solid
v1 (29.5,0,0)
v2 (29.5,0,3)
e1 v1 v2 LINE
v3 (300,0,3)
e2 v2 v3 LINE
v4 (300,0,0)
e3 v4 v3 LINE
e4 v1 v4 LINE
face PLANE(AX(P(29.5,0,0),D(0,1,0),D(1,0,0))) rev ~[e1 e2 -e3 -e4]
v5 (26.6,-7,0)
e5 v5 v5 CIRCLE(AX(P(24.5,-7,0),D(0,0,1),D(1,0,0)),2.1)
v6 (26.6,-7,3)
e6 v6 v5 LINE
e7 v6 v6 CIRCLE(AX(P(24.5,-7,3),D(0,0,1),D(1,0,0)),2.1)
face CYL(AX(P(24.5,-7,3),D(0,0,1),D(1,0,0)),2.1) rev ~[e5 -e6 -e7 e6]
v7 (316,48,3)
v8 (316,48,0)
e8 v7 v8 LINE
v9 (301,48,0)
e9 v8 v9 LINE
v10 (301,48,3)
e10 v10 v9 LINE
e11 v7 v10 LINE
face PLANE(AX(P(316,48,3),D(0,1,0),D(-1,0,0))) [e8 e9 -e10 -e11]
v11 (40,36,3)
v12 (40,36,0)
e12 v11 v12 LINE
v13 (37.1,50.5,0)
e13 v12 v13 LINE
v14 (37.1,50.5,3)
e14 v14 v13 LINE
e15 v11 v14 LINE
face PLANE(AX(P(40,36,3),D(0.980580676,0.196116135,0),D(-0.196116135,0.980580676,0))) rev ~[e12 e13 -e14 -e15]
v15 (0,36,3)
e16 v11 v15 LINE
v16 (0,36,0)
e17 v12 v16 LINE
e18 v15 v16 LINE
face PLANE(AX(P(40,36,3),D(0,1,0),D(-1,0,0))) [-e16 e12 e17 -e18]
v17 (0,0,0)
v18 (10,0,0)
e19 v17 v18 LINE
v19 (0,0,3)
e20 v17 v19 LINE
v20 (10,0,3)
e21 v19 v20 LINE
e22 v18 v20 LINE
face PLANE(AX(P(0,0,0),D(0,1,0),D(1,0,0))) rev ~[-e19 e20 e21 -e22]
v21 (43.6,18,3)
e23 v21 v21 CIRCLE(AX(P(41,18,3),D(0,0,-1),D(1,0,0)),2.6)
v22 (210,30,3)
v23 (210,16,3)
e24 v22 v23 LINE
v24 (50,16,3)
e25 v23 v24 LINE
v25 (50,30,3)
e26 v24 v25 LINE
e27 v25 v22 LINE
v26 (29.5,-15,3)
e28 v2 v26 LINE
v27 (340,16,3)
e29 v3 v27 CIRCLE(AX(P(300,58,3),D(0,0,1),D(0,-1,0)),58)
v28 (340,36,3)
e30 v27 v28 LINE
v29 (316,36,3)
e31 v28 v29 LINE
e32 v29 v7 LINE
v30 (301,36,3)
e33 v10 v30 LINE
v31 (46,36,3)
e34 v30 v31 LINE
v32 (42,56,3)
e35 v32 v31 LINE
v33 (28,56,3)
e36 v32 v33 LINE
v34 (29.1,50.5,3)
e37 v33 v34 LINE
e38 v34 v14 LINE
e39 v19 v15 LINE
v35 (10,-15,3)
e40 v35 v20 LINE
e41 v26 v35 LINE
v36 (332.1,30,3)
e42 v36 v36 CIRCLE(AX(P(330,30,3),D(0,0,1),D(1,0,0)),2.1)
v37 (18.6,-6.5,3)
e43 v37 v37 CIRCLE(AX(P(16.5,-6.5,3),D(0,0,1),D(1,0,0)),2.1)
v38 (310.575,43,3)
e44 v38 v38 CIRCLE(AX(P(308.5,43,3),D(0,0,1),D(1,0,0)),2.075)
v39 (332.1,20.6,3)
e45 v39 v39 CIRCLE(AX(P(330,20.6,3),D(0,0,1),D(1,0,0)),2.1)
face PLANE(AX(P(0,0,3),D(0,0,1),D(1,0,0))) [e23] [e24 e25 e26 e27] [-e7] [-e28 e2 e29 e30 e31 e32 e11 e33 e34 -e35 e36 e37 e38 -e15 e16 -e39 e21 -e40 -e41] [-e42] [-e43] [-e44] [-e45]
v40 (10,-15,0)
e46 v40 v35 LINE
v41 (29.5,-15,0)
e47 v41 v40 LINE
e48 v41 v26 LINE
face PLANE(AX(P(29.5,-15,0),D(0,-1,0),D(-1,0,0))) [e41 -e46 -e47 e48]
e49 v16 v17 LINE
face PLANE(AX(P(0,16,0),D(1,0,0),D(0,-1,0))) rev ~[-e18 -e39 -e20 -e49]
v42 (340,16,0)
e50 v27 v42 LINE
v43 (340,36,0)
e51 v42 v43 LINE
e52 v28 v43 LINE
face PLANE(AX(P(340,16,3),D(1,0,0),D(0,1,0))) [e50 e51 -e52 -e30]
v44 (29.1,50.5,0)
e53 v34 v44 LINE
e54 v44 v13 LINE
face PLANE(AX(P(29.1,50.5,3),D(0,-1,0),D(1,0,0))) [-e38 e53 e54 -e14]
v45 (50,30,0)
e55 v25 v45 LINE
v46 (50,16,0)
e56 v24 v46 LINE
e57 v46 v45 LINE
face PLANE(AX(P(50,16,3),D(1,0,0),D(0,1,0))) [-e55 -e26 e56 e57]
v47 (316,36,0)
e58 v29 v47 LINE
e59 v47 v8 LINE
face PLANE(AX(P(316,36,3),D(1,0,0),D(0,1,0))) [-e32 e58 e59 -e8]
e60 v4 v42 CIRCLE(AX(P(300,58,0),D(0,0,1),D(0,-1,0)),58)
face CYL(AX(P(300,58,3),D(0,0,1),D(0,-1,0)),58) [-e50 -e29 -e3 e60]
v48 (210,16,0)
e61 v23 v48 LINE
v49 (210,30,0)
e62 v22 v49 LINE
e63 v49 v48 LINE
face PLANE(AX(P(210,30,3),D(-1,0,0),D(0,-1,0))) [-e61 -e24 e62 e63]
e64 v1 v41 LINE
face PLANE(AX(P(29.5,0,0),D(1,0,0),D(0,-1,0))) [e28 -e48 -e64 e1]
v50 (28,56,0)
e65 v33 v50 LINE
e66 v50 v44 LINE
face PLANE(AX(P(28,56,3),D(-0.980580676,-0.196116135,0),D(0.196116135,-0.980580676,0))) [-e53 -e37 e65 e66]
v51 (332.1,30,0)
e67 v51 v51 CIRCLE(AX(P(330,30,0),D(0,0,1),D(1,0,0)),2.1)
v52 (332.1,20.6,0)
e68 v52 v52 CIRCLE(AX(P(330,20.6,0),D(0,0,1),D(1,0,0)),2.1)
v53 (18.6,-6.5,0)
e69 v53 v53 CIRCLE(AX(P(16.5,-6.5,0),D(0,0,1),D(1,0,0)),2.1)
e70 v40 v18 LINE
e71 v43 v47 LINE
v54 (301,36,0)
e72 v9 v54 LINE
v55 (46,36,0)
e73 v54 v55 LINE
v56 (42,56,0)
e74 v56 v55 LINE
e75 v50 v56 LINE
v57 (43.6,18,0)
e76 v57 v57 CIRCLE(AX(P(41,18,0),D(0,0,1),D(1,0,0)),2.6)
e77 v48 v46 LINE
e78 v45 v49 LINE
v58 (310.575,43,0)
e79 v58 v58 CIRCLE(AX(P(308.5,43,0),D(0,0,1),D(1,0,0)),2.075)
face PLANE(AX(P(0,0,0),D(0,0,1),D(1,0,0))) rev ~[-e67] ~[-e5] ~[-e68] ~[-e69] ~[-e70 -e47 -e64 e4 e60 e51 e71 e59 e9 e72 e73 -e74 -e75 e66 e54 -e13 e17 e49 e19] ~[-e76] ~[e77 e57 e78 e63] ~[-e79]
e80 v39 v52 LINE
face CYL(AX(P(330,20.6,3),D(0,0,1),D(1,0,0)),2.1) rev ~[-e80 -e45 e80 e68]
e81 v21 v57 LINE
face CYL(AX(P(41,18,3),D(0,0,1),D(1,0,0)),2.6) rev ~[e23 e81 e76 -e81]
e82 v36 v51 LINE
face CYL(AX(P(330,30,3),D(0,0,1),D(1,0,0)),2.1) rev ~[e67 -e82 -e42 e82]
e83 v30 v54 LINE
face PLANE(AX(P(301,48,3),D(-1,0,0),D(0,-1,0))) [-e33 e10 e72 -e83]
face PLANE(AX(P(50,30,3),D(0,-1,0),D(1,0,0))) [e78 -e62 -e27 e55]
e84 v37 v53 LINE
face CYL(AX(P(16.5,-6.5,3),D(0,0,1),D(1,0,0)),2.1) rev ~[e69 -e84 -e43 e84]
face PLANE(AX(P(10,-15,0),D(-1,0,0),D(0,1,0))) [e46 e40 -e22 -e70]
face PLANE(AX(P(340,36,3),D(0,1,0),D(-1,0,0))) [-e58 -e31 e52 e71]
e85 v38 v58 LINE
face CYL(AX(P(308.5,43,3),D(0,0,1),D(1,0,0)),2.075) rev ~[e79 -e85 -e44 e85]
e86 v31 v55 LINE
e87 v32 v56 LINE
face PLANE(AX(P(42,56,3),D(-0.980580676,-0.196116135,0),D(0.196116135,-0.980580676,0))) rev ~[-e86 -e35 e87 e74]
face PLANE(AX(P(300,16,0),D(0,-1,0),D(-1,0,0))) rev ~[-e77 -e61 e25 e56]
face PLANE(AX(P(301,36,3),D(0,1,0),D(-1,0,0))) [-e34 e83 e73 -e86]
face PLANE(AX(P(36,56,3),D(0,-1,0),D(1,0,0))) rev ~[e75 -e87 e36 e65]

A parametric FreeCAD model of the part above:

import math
import FreeCAD as App
import Part
import Sketcher

doc = App.newDocument("Part")
body = doc.addObject("PartDesign::Body", "Body")

# Sketch on XY plane
sketch1 = body.newObject("Sketcher::SketchObject", "Sketch")
sketch1.AttachmentSupport = (doc.getObject("XY_Plane"), [""])
sketch1.MapMode = "FlatFace"
sketch1.addGeometry(Part.LineSegment(App.Vector(0, 16, 0), App.Vector(0, 0, 0)), False)
sketch1.addGeometry(Part.LineSegment(App.Vector(0, 0, 0), App.Vector(10, 0, 0)), False)
sketch1.addGeometry(Part.LineSegment(App.Vector(10, 0, 0), App.Vector(10, -15, 0)), False)
sketch1.addGeometry(Part.LineSegment(App.Vector(10, -15, 0), App.Vector(30, -15, 0)), False)
sketch1.addGeometry(Part.LineSegment(App.Vector(30, -15, 0), App.Vector(30, 0, 0)), False)
sketch1.addGeometry(Part.LineSegment(App.Vector(30, 0, 0), App.Vector(300, 0, 0)), False)
sketch1.addGeometry(Part.LineSegment(App.Vector(300, 0, 0), App.Vector(300, 16, 0)), False)
sketch1.addGeometry(Part.LineSegment(App.Vector(300, 16, 0), App.Vector(0, 16, 0)), False)
sketch1.addConstraint(Sketcher.Constraint("Coincident", 0, 2, 1, 1))
sketch1.addConstraint(Sketcher.Constraint("Coincident", 1, 2, 2, 1))
sketch1.addConstraint(Sketcher.Constraint("Coincident", 2, 2, 3, 1))
sketch1.addConstraint(Sketcher.Constraint("Coincident", 3, 2, 4, 1))
sketch1.addConstraint(Sketcher.Constraint("Coincident", 4, 2, 5, 1))
sketch1.addConstraint(Sketcher.Constraint("Coincident", 5, 2, 6, 1))
sketch1.addConstraint(Sketcher.Constraint("Coincident", 6, 2, 7, 1))
sketch1.addConstraint(Sketcher.Constraint("Coincident", 7, 2, 0, 1))
sketch1.addConstraint(Sketcher.Constraint("Vertical", 0))
sketch1.addConstraint(Sketcher.Constraint("Horizontal", 1))
sketch1.addConstraint(Sketcher.Constraint("Vertical", 2))
sketch1.addConstraint(Sketcher.Constraint("Horizontal", 3))
sketch1.addConstraint(Sketcher.Constraint("Vertical", 4))
sketch1.addConstraint(Sketcher.Constraint("Horizontal", 5))
sketch1.addConstraint(Sketcher.Constraint("Vertical", 6))
sketch1.addConstraint(Sketcher.Constraint("Horizontal", 7))
sketch1.addConstraint(Sketcher.Constraint("Coincident", 0, 2, -1, 1))
sketch1.addConstraint(Sketcher.Constraint("PointOnObject", 4, 2, -1))
sketch1.addConstraint(Sketcher.Constraint("DistanceX", 1, 1, 1, 2, 10.0))
sketch1.addConstraint(Sketcher.Constraint("DistanceX", 7, 2, 7, 1, 300.0))
sketch1.addConstraint(Sketcher.Constraint("DistanceY", 0, 2, 0, 1, 16.0))
sketch1.addConstraint(Sketcher.Constraint("DistanceY", 2, 2, 2, 1, 15.0))
sketch1.addConstraint(Sketcher.Constraint("DistanceX", 3, 1, 3, 2, 19.5))
pad1 = body.newObject("PartDesign::Pad", "Pad")
pad1.Profile = sketch1
pad1.Length = 3

# Sketch on XY plane
sketch2 = body.newObject("Sketcher::SketchObject", "Sketch001")
sketch2.AttachmentSupport = (doc.getObject("XY_Plane"), [""])
sketch2.MapMode = "FlatFace"
sketch2.AttachmentOffset = App.Placement(App.Vector(0, 0, 3), App.Rotation())
sketch2.addGeometry(Part.LineSegment(App.Vector(0, 36, 0), App.Vector(0, 16, 0)), False)
sketch2.addGeometry(Part.LineSegment(App.Vector(0, 16, 0), App.Vector(50, 16, 0)), False)
sketch2.addGeometry(Part.LineSegment(App.Vector(50, 16, 0), App.Vector(50, 30, 0)), False)
sketch2.addGeometry(Part.LineSegment(App.Vector(50, 30, 0), App.Vector(210, 30, 0)), False)
sketch2.addGeometry(Part.LineSegment(App.Vector(210, 30, 0), App.Vector(210, 16, 0)), False)
sketch2.addGeometry(Part.LineSegment(App.Vector(210, 16, 0), App.Vector(340, 16, 0)), False)
sketch2.addGeometry(Part.LineSegment(App.Vector(340, 16, 0), App.Vector(340, 36, 0)), False)
sketch2.addGeometry(Part.LineSegment(App.Vector(340, 36, 0), App.Vector(316, 36, 0)), False)
sketch2.addGeometry(Part.LineSegment(App.Vector(316, 36, 0), App.Vector(316, 48, 0)), False)
sketch2.addGeometry(Part.LineSegment(App.Vector(316, 48, 0), App.Vector(301, 48, 0)), False)
sketch2.addGeometry(Part.LineSegment(App.Vector(301, 48, 0), App.Vector(301, 36, 0)), False)
sketch2.addGeometry(Part.LineSegment(App.Vector(301, 36, 0), App.Vector(46, 36, 0)), False)
sketch2.addGeometry(Part.LineSegment(App.Vector(46, 36, 0), App.Vector(42, 56, 0)), False)
sketch2.addGeometry(Part.LineSegment(App.Vector(42, 56, 0), App.Vector(28, 56, 0)), False)
sketch2.addGeometry(Part.LineSegment(App.Vector(28, 56, 0), App.Vector(29.1, 50.5, 0)), False)
sketch2.addGeometry(Part.LineSegment(App.Vector(29.1, 50.5, 0), App.Vector(37.1, 50.5, 0)), False)
sketch2.addGeometry(Part.LineSegment(App.Vector(37.1, 50.5, 0), App.Vector(40, 36, 0)), False)
sketch2.addGeometry(Part.LineSegment(App.Vector(40, 36, 0), App.Vector(0, 36, 0)), False)
sketch2.addGeometry(Part.Circle(App.Vector(330, 20.6, 0), App.Vector(0, 0, 1), 2.1), False)
sketch2.addGeometry(Part.Circle(App.Vector(330, 30, 0), App.Vector(0, 0, 1), 2.1), False)
sketch2.addGeometry(Part.Circle(App.Vector(308.5, 43, 0), App.Vector(0, 0, 1), 2.1), False)
sketch2.addConstraint(Sketcher.Constraint("Coincident", 0, 2, 1, 1))
sketch2.addConstraint(Sketcher.Constraint("Coincident", 1, 2, 2, 1))
sketch2.addConstraint(Sketcher.Constraint("Coincident", 2, 2, 3, 1))
sketch2.addConstraint(Sketcher.Constraint("Coincident", 3, 2, 4, 1))
sketch2.addConstraint(Sketcher.Constraint("Coincident", 4, 2, 5, 1))
sketch2.addConstraint(Sketcher.Constraint("Coincident", 5, 2, 6, 1))
sketch2.addConstraint(Sketcher.Constraint("Coincident", 6, 2, 7, 1))
sketch2.addConstraint(Sketcher.Constraint("Coincident", 7, 2, 8, 1))
sketch2.addConstraint(Sketcher.Constraint("Coincident", 8, 2, 9, 1))
sketch2.addConstraint(Sketcher.Constraint("Coincident", 9, 2, 10, 1))
sketch2.addConstraint(Sketcher.Constraint("Coincident", 10, 2, 11, 1))
sketch2.addConstraint(Sketcher.Constraint("Coincident", 11, 2, 12, 1))
sketch2.addConstraint(Sketcher.Constraint("Coincident", 12, 2, 13, 1))
sketch2.addConstraint(Sketcher.Constraint("Coincident", 13, 2, 14, 1))
sketch2.addConstraint(Sketcher.Constraint("Coincident", 14, 2, 15, 1))
sketch2.addConstraint(Sketcher.Constraint("Coincident", 15, 2, 16, 1))
sketch2.addConstraint(Sketcher.Constraint("Coincident", 16, 2, 17, 1))
sketch2.addConstraint(Sketcher.Constraint("Coincident", 17, 2, 0, 1))
sketch2.addConstraint(Sketcher.Constraint("Vertical", 0))
sketch2.addConstraint(Sketcher.Constraint("Horizontal", 1))
sketch2.addConstraint(Sketcher.Constraint("Vertical", 2))
sketch2.addConstraint(Sketcher.Constraint("Horizontal", 3))
sketch2.addConstraint(Sketcher.Constraint("Vertical", 4))
sketch2.addConstraint(Sketcher.Constraint("Horizontal", 5))
sketch2.addConstraint(Sketcher.Constraint("Vertical", 6))
sketch2.addConstraint(Sketcher.Constraint("Horizontal", 7))
sketch2.addConstraint(Sketcher.Constraint("Vertical", 8))
sketch2.addConstraint(Sketcher.Constraint("Horizontal", 9))
sketch2.addConstraint(Sketcher.Constraint("Vertical", 10))
sketch2.addConstraint(Sketcher.Constraint("Horizontal", 11))
sketch2.addConstraint(Sketcher.Constraint("Horizontal", 13))
sketch2.addConstraint(Sketcher.Constraint("Horizontal", 15))
sketch2.addConstraint(Sketcher.Constraint("Horizontal", 17))
sketch2.addConstraint(Sketcher.Constraint("Equal", 18, 19))
sketch2.addConstraint(Sketcher.Constraint("PointOnObject", 0, 2, -2))
sketch2.addConstraint(Sketcher.Constraint("Parallel", 12, 14))
sketch2.addConstraint(Sketcher.Constraint("Parallel", 14, 16))
sketch2.addConstraint(Sketcher.Constraint("Horizontal", 19, 3, 2, 2))
sketch2.addConstraint(Sketcher.Constraint("Horizontal", 1, 2, 4, 2))
sketch2.addConstraint(Sketcher.Constraint("Horizontal", 7, 2, 10, 2))
sketch2.addConstraint(Sketcher.Constraint("Horizontal", 11, 2, 16, 2))
sketch2.addConstraint(Sketcher.Constraint("Vertical", 18, 3, 19, 3))
sketch2.addConstraint(Sketcher.Constraint("Equal", 13, 2))
sketch2.addConstraint(Sketcher.Constraint("Diameter", 18, 4.2))
sketch2.addConstraint(Sketcher.Constraint("Diameter", 20, 4.15))
sketch2.addConstraint(Sketcher.Constraint("DistanceX", 1, 1, 1, 2, 50.0))
sketch2.addConstraint(Sketcher.Constraint("DistanceX", 3, 1, 3, 2, 160.0))
sketch2.addConstraint(Sketcher.Constraint("DistanceX", 7, 2, 7, 1, 24.0))
sketch2.addConstraint(Sketcher.Constraint("DistanceX", 9, 2, 9, 1, 15.0))
sketch2.addConstraint(Sketcher.Constraint("DistanceX", 13, 2, 13, 1, 14.0))
sketch2.addConstraint(Sketcher.Constraint("DistanceX", 15, 1, 15, 2, 8.0))
sketch2.addConstraint(Sketcher.Constraint("DistanceX", 17, 2, 17, 1, 40.0))
sketch2.addConstraint(Sketcher.Constraint("DistanceY", 0, 2, 0, 1, 20.0))
sketch2.addConstraint(Sketcher.Constraint("DistanceY", 8, 1, 8, 2, 12.0))
sketch2.addConstraint(Sketcher.Constraint("DistanceX", 18, 3, 5, 2, 10.0))
sketch2.addConstraint(Sketcher.Constraint("DistanceY", 6, 2, 20, 3, 7.0))
sketch2.addConstraint(Sketcher.Constraint("DistanceX", 12, 2, 11, 2, 4.0))
sketch2.addConstraint(Sketcher.Constraint("DistanceY", 11, 2, 12, 2, 20.0))
sketch2.addConstraint(Sketcher.Constraint("DistanceY", 18, 3, 19, 3, 9.4))
sketch2.addConstraint(Sketcher.Constraint("DistanceY", 14, 2, 13, 2, 5.5))
sketch2.addConstraint(Sketcher.Constraint("DistanceX", 5, 1, 5, 2, 130.0))
sketch2.addConstraint(Sketcher.Constraint("DistanceY", -1, 1, 19, 3, 30.0))
sketch2.addConstraint(Sketcher.Constraint("DistanceX", -1, 1, 20, 3, 308.5))
pad2 = body.newObject("PartDesign::Pad", "Pad001")
pad2.Profile = sketch2
pad2.Length = 3
pad2.Reversed = True

# Sketch on XY plane
sketch3 = body.newObject("Sketcher::SketchObject", "Sketch002")
sketch3.AttachmentSupport = (doc.getObject("XY_Plane"), [""])
sketch3.MapMode = "FlatFace"
sketch3.AttachmentOffset = App.Placement(App.Vector(0, 0, 3), App.Rotation())
sketch3.addGeometry(Part.Circle(App.Vector(16.5, -6.5, 0), App.Vector(0, 0, 1), 2.1), False)
sketch3.addGeometry(Part.Circle(App.Vector(24.5, -7, 0), App.Vector(0, 0, 1), 2.1), False)
sketch3.addConstraint(Sketcher.Constraint("Equal", 0, 1))
sketch3.addConstraint(Sketcher.Constraint("Diameter", 0, 4.2))
sketch3.addConstraint(Sketcher.Constraint("DistanceY", 1, 3, -1, 1, 7.0))
sketch3.addConstraint(Sketcher.Constraint("DistanceX", 0, 3, 1, 3, 8.0))
sketch3.addConstraint(Sketcher.Constraint("DistanceY", 0, 3, -1, 1, 6.5))
sketch3.addConstraint(Sketcher.Constraint("DistanceX", -1, 1, 0, 3, 16.5))
pocket1 = body.newObject("PartDesign::Pocket", "Pocket")
pocket1.Profile = sketch3
pocket1.Length = 3

# Sketch on XY plane
sketch4 = body.newObject("Sketcher::SketchObject", "Sketch003")
sketch4.AttachmentSupport = (doc.getObject("XY_Plane"), [""])
sketch4.MapMode = "FlatFace"
sketch4.AttachmentOffset = App.Placement(App.Vector(0, 0, 3), App.Rotation())
sketch4.addGeometry(Part.Circle(App.Vector(41, 18, 0), App.Vector(0, 0, 1), 2.6), False)
sketch4.addConstraint(Sketcher.Constraint("Diameter", 0, 5.2))
sketch4.addConstraint(Sketcher.Constraint("DistanceY", -1, 1, 0, 3, 18.0))
sketch4.addConstraint(Sketcher.Constraint("DistanceX", -1, 1, 0, 3, 41.0))
pocket2 = body.newObject("PartDesign::Pocket", "Pocket001")
pocket2.Profile = sketch4
pocket2.Length = 3

# Sketch on XY plane
sketch5 = body.newObject("Sketcher::SketchObject", "Sketch004")
sketch5.AttachmentSupport = (doc.getObject("XY_Plane"), [""])
sketch5.MapMode = "FlatFace"
sketch5.AttachmentOffset = App.Placement(App.Vector(0, 0, 3), App.Rotation())
sketch5.addGeometry(Part.LineSegment(App.Vector(300, 16, 0), App.Vector(300, 0, 0)), False)
sketch5.addGeometry(Part.ArcOfCircle(Part.Circle(App.Vector(300, 58, 0), App.Vector(0, 0, 1), 58), math.radians(-90), math.radians(-46)), False)
sketch5.addGeometry(Part.LineSegment(App.Vector(340, 16, 0), App.Vector(300, 16, 0)), False)
sketch5.addConstraint(Sketcher.Constraint("Coincident", 0, 2, 1, 1))
sketch5.addConstraint(Sketcher.Constraint("Coincident", 1, 2, 2, 1))
sketch5.addConstraint(Sketcher.Constraint("Coincident", 2, 2, 0, 1))
sketch5.addConstraint(Sketcher.Constraint("Vertical", 0))
sketch5.addConstraint(Sketcher.Constraint("Horizontal", 2))
sketch5.addConstraint(Sketcher.Constraint("PointOnObject", 0, 2, -1))
sketch5.addConstraint(Sketcher.Constraint("Vertical", 1, 3, 0, 2))
sketch5.addConstraint(Sketcher.Constraint("Radius", 1, 58.0))
sketch5.addConstraint(Sketcher.Constraint("DistanceX", 2, 2, 2, 1, 40.0))
sketch5.addConstraint(Sketcher.Constraint("DistanceX", -1, 1, 1, 3, 300.0))
pad3 = body.newObject("PartDesign::Pad", "Pad002")
pad3.Profile = sketch5
pad3.Length = 3
pad3.Reversed = True

doc.recompute()
